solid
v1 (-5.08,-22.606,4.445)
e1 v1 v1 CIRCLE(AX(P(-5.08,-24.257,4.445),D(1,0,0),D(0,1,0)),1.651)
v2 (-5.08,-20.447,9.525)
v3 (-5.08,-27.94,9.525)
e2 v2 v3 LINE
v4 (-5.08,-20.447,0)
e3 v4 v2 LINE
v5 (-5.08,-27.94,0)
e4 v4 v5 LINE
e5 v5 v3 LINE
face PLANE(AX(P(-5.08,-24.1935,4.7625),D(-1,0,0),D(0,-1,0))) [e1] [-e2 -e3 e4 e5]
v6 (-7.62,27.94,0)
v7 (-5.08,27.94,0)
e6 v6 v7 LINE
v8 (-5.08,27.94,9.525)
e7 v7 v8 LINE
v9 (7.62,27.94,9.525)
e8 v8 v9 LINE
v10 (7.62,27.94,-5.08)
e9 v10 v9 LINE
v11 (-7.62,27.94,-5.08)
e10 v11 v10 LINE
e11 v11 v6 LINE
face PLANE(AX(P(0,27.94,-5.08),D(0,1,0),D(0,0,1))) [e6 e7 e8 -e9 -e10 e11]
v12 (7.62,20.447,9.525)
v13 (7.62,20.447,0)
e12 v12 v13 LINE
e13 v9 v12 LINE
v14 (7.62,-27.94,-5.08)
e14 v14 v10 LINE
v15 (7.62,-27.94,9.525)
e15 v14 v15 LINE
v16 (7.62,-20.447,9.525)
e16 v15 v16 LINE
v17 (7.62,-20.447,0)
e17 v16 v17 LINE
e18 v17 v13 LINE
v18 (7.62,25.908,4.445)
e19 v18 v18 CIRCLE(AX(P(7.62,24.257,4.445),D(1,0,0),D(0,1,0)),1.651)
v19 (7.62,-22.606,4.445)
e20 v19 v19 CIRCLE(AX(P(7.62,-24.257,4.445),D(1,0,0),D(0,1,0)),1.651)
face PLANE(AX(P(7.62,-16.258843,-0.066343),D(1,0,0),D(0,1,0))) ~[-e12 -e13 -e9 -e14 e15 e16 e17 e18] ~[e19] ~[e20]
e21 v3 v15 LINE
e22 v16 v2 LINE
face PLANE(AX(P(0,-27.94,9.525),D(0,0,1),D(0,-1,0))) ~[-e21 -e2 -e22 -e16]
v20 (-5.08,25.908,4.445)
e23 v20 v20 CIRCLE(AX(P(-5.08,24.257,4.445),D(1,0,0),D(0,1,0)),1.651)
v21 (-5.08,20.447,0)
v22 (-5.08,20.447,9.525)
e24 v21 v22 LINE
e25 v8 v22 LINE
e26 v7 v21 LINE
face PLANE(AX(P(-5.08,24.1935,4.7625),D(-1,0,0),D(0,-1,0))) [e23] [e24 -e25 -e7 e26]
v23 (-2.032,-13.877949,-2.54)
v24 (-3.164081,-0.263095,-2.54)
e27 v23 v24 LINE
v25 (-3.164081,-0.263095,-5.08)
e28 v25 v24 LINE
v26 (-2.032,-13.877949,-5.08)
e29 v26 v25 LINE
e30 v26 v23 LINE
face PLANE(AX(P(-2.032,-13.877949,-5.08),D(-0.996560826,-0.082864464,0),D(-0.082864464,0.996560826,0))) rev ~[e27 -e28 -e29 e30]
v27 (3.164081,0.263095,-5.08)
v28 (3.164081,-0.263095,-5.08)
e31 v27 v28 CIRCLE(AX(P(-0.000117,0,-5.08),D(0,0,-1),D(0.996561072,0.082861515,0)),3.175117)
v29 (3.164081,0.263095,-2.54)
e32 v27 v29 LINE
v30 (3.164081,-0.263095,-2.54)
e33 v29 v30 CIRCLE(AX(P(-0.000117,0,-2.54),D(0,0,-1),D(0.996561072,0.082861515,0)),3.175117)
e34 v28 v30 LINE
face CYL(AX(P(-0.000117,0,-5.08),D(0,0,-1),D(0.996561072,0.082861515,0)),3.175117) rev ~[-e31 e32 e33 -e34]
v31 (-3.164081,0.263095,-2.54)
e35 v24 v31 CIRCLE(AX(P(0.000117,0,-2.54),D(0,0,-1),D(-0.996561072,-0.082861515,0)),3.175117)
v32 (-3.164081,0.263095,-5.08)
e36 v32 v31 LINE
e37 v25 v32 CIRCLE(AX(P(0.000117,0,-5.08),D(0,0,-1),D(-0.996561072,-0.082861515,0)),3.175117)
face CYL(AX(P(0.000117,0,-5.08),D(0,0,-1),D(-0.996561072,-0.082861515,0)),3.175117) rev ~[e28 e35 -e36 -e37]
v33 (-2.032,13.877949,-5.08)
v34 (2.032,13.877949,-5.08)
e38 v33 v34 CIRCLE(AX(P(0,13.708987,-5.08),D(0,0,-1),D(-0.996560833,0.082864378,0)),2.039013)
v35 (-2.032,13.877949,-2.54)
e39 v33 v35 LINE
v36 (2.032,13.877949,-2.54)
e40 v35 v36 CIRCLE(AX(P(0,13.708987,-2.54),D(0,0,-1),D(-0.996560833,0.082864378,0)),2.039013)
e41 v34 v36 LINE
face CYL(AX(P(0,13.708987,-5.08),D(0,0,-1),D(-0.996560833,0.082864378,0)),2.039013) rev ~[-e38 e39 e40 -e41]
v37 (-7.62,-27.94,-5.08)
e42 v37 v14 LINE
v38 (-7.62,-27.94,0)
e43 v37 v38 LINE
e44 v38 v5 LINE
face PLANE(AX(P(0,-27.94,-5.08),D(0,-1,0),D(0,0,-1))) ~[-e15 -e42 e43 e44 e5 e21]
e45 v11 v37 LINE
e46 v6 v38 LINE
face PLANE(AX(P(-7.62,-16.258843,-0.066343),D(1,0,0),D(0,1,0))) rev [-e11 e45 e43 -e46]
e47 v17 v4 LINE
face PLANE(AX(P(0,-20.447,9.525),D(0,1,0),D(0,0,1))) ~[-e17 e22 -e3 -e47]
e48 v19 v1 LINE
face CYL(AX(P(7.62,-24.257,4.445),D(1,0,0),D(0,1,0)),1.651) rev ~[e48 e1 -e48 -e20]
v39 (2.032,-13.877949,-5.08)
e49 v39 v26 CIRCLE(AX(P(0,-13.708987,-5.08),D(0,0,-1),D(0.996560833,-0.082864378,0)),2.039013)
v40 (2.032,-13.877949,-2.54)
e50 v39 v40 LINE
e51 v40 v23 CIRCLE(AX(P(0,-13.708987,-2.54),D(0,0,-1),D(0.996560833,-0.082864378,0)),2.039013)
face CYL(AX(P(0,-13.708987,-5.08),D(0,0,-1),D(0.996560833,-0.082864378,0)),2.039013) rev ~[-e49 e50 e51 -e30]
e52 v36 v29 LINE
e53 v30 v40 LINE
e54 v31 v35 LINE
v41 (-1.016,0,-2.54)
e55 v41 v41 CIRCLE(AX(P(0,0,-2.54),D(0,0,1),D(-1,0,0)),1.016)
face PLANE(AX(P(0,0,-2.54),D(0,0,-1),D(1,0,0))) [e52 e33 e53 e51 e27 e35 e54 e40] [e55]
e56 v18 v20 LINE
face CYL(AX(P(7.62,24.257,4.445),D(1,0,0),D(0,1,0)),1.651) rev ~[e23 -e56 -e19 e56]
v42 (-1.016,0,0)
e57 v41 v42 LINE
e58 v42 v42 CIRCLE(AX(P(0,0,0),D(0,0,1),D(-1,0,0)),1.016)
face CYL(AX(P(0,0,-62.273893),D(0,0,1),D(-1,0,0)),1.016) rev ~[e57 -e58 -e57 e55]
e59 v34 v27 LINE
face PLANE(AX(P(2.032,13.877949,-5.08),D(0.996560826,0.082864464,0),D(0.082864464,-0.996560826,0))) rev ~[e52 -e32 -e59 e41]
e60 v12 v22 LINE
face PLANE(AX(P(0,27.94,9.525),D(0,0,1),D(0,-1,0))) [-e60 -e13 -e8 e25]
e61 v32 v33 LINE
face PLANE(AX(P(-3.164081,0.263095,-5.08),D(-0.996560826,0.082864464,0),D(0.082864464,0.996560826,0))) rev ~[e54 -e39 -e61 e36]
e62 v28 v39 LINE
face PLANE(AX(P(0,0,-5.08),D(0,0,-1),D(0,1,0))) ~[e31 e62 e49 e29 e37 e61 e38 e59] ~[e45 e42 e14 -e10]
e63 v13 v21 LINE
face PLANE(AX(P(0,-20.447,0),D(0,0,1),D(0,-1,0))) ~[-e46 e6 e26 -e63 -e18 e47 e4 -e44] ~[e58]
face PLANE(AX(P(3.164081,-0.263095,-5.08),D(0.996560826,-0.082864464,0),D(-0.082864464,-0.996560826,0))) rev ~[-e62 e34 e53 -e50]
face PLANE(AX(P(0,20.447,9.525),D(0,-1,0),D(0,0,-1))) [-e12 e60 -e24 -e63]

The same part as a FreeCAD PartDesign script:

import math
import FreeCAD as App
import Part
import Sketcher
from FreeCAD import Vector
Q = App.Units.Quantity

doc = App.newDocument("Part")
body = doc.addObject("PartDesign::Body", "Body")

# Sketch on YZ plane
sketch1 = doc.addObject("Sketcher::SketchObject", "Sketch")
body.addObject(sketch1)
sketch1.AttachmentSupport = (doc.YZ_Plane, [""])
sketch1.MapMode = "FlatFace"
sketch1.addGeometry(Part.LineSegment(Vector(0, 0, 0), Vector(0, -5, 0)), False)
sketch1.addGeometry(Part.LineSegment(Vector(0, -5, 0), Vector(28, -5, 0)), False)
sketch1.addGeometry(Part.LineSegment(Vector(28, -5, 0), Vector(28, 10, 0)), False)
sketch1.addGeometry(Part.LineSegment(Vector(28, 10, 0), Vector(20, 10, 0)), False)
sketch1.addGeometry(Part.LineSegment(Vector(20, 10, 0), Vector(20, 0, 0)), False)
sketch1.addGeometry(Part.LineSegment(Vector(20, 0, 0), Vector(0, 0, 0)), False)
sketch1.addConstraint(Sketcher.Constraint("Coincident", 0, 2, 1, 1))
sketch1.addConstraint(Sketcher.Constraint("Coincident", 1, 2, 2, 1))
sketch1.addConstraint(Sketcher.Constraint("Coincident", 2, 2, 3, 1))
sketch1.addConstraint(Sketcher.Constraint("Coincident", 3, 2, 4, 1))
sketch1.addConstraint(Sketcher.Constraint("Coincident", 4, 2, 5, 1))
sketch1.addConstraint(Sketcher.Constraint("Coincident", 5, 2, 0, 1))
sketch1.addConstraint(Sketcher.Constraint("Vertical", 0))
sketch1.addConstraint(Sketcher.Constraint("Horizontal", 1))
sketch1.addConstraint(Sketcher.Constraint("Vertical", 2))
sketch1.addConstraint(Sketcher.Constraint("Horizontal", 3))
sketch1.addConstraint(Sketcher.Constraint("Vertical", 4))
sketch1.addConstraint(Sketcher.Constraint("Horizontal", 5))
sketch1.addConstraint(Sketcher.Constraint("Coincident", 5, 2, -1, 1))
sketch1.addConstraint(Sketcher.Constraint("DistanceX", 1, 1, 1, 2, Q("1.1 in")))
sketch1.addConstraint(Sketcher.Constraint("DistanceY", 0, 2, 0, 1, Q("0.2 in")))
sketch1.addConstraint(Sketcher.Constraint("DistanceX", 3, 2, 3, 1, Q("0.295 in")))
sketch1.addConstraint(Sketcher.Constraint("DistanceY", 2, 1, 2, 2, Q("0.575 in")))
pad1 = doc.addObject("PartDesign::Pad", "Pad")
body.addObject(pad1)
pad1.Profile = sketch1
pad1.Length = Q("0.6 in")
pad1.Midplane = True
body2 = doc.addObject("PartDesign::Body", "Body001")
doc.recompute()

body2.BaseFeature = body
doc.recompute()

mirroring = doc.addObject("Part::Mirroring", "Mirroring")
mirroring.Source = body
mirroring.Base = Vector(0, 0, 0)
mirroring.Normal = Vector(0, -1, 0)
body3 = doc.addObject("PartDesign::Body", "Body002")
body3.BaseFeature = mirroring
boolean = doc.addObject("PartDesign::Boolean", "Boolean")
body2.addObject(boolean)
boolean.Type = "Fuse"
boolean.addObjects([body3])
doc.recompute()

# Sketch on YZ plane
sketch2 = doc.addObject("Sketcher::SketchObject", "Sketch001")
body2.addObject(sketch2)
sketch2.AttachmentSupport = (doc.getObject("YZ_Plane001"), [""])
sketch2.MapMode = "FlatFace"
sketch2.AttachmentOffset = App.Placement(Vector(0, 0, 0.3 * 25.4), App.Rotation())
sketch2.addGeometry(Part.Circle(Vector(-24.3, 4.4, 0), Vector(0, 0, 1), 1.7), False)
sketch2.addGeometry(Part.Circle(Vector(24.3, 4.4, 0), Vector(0, 0, 1), 1.7), False)
sketch2.addConstraint(Sketcher.Constraint("Equal", 0, 1))
sketch2.addConstraint(Sketcher.Constraint("Symmetric", 0, 3, 1, 3, -2))
sketch2.addConstraint(Sketcher.Constraint("Diameter", 0, Q("0.13 in")))
sketch2.addConstraint(Sketcher.Constraint("DistanceX", 0, 3, 1, 3, Q("1.91 in")))
sketch2.addConstraint(Sketcher.Constraint("DistanceY", -1, 1, 0, 3, Q("0.175 in")))
pocket1 = doc.addObject("PartDesign::Pocket", "Pocket")
body2.addObject(pocket1)
pocket1.Profile = sketch2
pocket1.Length = Q("1 in")

# Sketch on XY plane
sketch3 = doc.addObject("Sketcher::SketchObject", "Sketch002")
body2.addObject(sketch3)
sketch3.AttachmentSupport = (doc.getObject("XY_Plane001"), [""])
sketch3.MapMode = "FlatFace"
sketch3.AttachmentOffset = App.Placement(Vector(0, 0, -0.2 * 25.4), App.Rotation())
sketch3.addGeometry(Part.LineSegment(Vector(-3.164081, 0.263095, 0), Vector(-2.032, 13.877949, 0)), False)
sketch3.addGeometry(Part.ArcOfCircle(Part.Circle(Vector(0, 13.708987, 0), Vector(0, 0, 1), 2.039013), math.radians(4.753229), math.radians(175.246771)), False)
sketch3.addGeometry(Part.LineSegment(Vector(2.032, 13.877949, 0), Vector(3.164081, 0.263095, 0)), False)
sketch3.addGeometry(Part.ArcOfCircle(Part.Circle(Vector(-0.000117, 0, 0), Vector(0, 0, 1), 3.175117), math.radians(-4.753065), math.radians(4.753065)), False)
sketch3.addGeometry(Part.LineSegment(Vector(3.164081, -0.263095, 0), Vector(2.032, -13.877949, 0)), False)
sketch3.addGeometry(Part.ArcOfCircle(Part.Circle(Vector(0, -13.708987, 0), Vector(0, 0, 1), 2.039013), math.radians(-175.246771), math.radians(-4.753229)), False)
sketch3.addGeometry(Part.LineSegment(Vector(-2.032, -13.877949, 0), Vector(-3.164081, -0.263095, 0)), False)
sketch3.addGeometry(Part.ArcOfCircle(Part.Circle(Vector(0.000117, 0, 0), Vector(0, 0, 1), 3.175117), math.radians(175.246935), math.radians(184.753065)), False)
sketch3.addConstraint(Sketcher.Constraint("Coincident", 0, 2, 1, 2))
sketch3.addConstraint(Sketcher.Constraint("Coincident", 1, 1, 2, 1))
sketch3.addConstraint(Sketcher.Constraint("Coincident", 2, 2, 3, 2))
sketch3.addConstraint(Sketcher.Constraint("Coincident", 3, 1, 4, 1))
sketch3.addConstraint(Sketcher.Constraint("Coincident", 4, 2, 5, 2))
sketch3.addConstraint(Sketcher.Constraint("Coincident", 5, 1, 6, 1))
sketch3.addConstraint(Sketcher.Constraint("Coincident", 6, 2, 7, 2))
sketch3.addConstraint(Sketcher.Constraint("Coincident", 7, 1, 0, 1))
sketch3.addConstraint(Sketcher.Constraint("PointOnObject", 1, 3, -2))
sketch3.addConstraint(Sketcher.Constraint("PointOnObject", 3, 3, -1))
sketch3.addConstraint(Sketcher.Constraint("PointOnObject", 5, 3, -2))
sketch3.addConstraint(Sketcher.Constraint("PointOnObject", 7, 3, -1))
sketch3.addConstraint(Sketcher.Constraint("DistanceX", 0, 2, -1, 1, Q("0.08 in")))
sketch3.addConstraint(Sketcher.Constraint("DistanceX", -1, 1, 1, 1, Q("0.08 in")))
sketch3.addConstraint(Sketcher.Constraint("DistanceX", -1, 1, 4, 2, Q("0.08 in")))
sketch3.addConstraint(Sketcher.Constraint("DistanceX", 5, 1, -1, 1, Q("0.08 in")))
sketch3.addConstraint(Sketcher.Constraint("Radius", 1, Q("2.039013 mm")))
sketch3.addConstraint(Sketcher.Constraint("Radius", 3, Q("3.175117 mm")))
sketch3.addConstraint(Sketcher.Constraint("Radius", 5, Q("2.039013 mm")))
sketch3.addConstraint(Sketcher.Constraint("Radius", 7, Q("3.175117 mm")))
sketch3.addConstraint(Sketcher.Constraint("DistanceY", 5, 3, 0, 2, Q("1.0860999 in")))
sketch3.addConstraint(Sketcher.Constraint("Distance", 0, Q("13.661839 mm")))
sketch3.addConstraint(Sketcher.Constraint("Distance", 2, Q("13.661839 mm")))
sketch3.addConstraint(Sketcher.Constraint("Distance", 4, Q("13.661839 mm")))
sketch3.addConstraint(Sketcher.Constraint("Distance", 6, Q("13.661839 mm")))
sketch3.addConstraint(Sketcher.Constraint("DistanceY", -1, 1, 0, 2, Q("13.877949 mm")))
sketch3.addConstraint(Sketcher.Constraint("DistanceX", -1, 1, 2, 2, Q("3.164081 mm")))
sketch3.addConstraint(Sketcher.Constraint("DistanceX", 6, 2, -1, 1, Q("3.164081 mm")))
pocket2 = doc.addObject("PartDesign::Pocket", "Pocket001")
body2.addObject(pocket2)
pocket2.Profile = sketch3
pocket2.Length = Q("0.1 in")
pocket2.Reversed = True

# Sketch on XY plane
sketch4 = doc.addObject("Sketcher::SketchObject", "Sketch003")
body2.addObject(sketch4)
sketch4.AttachmentSupport = (doc.getObject("XY_Plane001"), [""])
sketch4.MapMode = "FlatFace"
sketch4.AttachmentOffset = App.Placement(Vector(0, 0, -0.1 * 25.4), App.Rotation())
sketch4.addGeometry(Part.Circle(Vector(0, 0, 0), Vector(0, 0, 1), 1), False)
sketch4.addConstraint(Sketcher.Constraint("Coincident", 0, 3, -1, 1))
sketch4.addConstraint(Sketcher.Constraint("Diameter", 0, Q("0.08 in")))
doc.recompute()
hole = doc.addObject("PartDesign::Hole", "Hole")
body2.addObject(hole)
hole.Profile = sketch4
hole.ThreadType = "None"
hole.Diameter = Q("0.08 in")
hole.DepthType = "ThroughAll"
hole.Reversed = True

# Sketch on YZ plane
sketch5 = doc.addObject("Sketcher::SketchObject", "Sketch004")
body2.addObject(sketch5)
sketch5.AttachmentSupport = (doc.getObject("YZ_Plane001"), [""])
sketch5.MapMode = "FlatFace"
sketch5.AttachmentOffset = App.Placement(Vector(0, 0, -0.3 * 25.4), App.Rotation())
sketch5.addGeometry(Part.LineSegment(Vector(27.9, 9.5, 0), Vector(27.9, 0, 0)), False)
sketch5.addGeometry(Part.LineSegment(Vector(27.9, 0, 0), Vector(20.4, 0, 0)), False)
sketch5.addGeometry(Part.LineSegment(Vector(20.4, 0, 0), Vector(20.4, 9.5, 0)), False)
sketch5.addGeometry(Part.LineSegment(Vector(20.4, 9.5, 0), Vector(27.9, 9.5, 0)), False)
sketch5.addGeometry(Part.Circle(Vector(24.3, 4.4, 0), Vector(0, 0, 1), 1.7), False)
sketch5.addGeometry(Part.LineSegment(Vector(-20.4, 9.5, 0), Vector(-20.4, 0, 0)), False)
sketch5.addGeometry(Part.LineSegment(Vector(-20.4, 0, 0), Vector(-27.9, 0, 0)), False)
sketch5.addGeometry(Part.LineSegment(Vector(-27.9, 0, 0), Vector(-27.9, 9.5, 0)), False)
sketch5.addGeometry(Part.LineSegment(Vector(-27.9, 9.5, 0), Vector(-20.4, 9.5, 0)), False)
sketch5.addGeometry(Part.Circle(Vector(-24.3, 4.4, 0), Vector(0, 0, 1), 1.7), False)
sketch5.addConstraint(Sketcher.Constraint("Coincident", 0, 2, 1, 1))
sketch5.addConstraint(Sketcher.Constraint("Coincident", 1, 2, 2, 1))
sketch5.addConstraint(Sketcher.Constraint("Coincident", 2, 2, 3, 1))
sketch5.addConstraint(Sketcher.Constraint("Coincident", 3, 2, 0, 1))
sketch5.addConstraint(Sketcher.Constraint("Coincident", 5, 2, 6, 1))
sketch5.addConstraint(Sketcher.Constraint("Coincident", 6, 2, 7, 1))
sketch5.addConstraint(Sketcher.Constraint("Coincident", 7, 2, 8, 1))
sketch5.addConstraint(Sketcher.Constraint("Coincident", 8, 2, 5, 1))
sketch5.addConstraint(Sketcher.Constraint("Vertical", 0))
sketch5.addConstraint(Sketcher.Constraint("Horizontal", 1))
sketch5.addConstraint(Sketcher.Constraint("Vertical", 2))
sketch5.addConstraint(Sketcher.Constraint("Horizontal", 3))
sketch5.addConstraint(Sketcher.Constraint("Vertical", 5))
sketch5.addConstraint(Sketcher.Constraint("Horizontal", 6))
sketch5.addConstraint(Sketcher.Constraint("Vertical", 7))
sketch5.addConstraint(Sketcher.Constraint("Horizontal", 8))
sketch5.addConstraint(Sketcher.Constraint("Equal", 4, 9))
sketch5.addConstraint(Sketcher.Constraint("Symmetric", 1, 2, 5, 2, -1, 1))
sketch5.addConstraint(Sketcher.Constraint("Symmetric", 4, 3, 9, 3, -2))
sketch5.addConstraint(Sketcher.Constraint("Symmetric", 0, 2, 6, 2, -2))
sketch5.addConstraint(Sketcher.Constraint("Horizontal", 3, 2, 7, 2))
sketch5.addConstraint(Sketcher.Constraint("Diameter", 4, Q("0.13 in")))
sketch5.addConstraint(Sketcher.Constraint("DistanceX", -1, 1, 0, 2, Q("1.1 in")))
sketch5.addConstraint(Sketcher.Constraint("DistanceY", 4, 3, 2, 2, Q("0.2 in")))
sketch5.addConstraint(Sketcher.Constraint("DistanceX", 1, 2, 1, 1, Q("0.295 in")))
sketch5.addConstraint(Sketcher.Constraint("DistanceY", 0, 2, 0, 1, Q("0.375 in")))
sketch5.addConstraint(Sketcher.Constraint("DistanceX", 9, 3, 4, 3, Q("1.91 in")))
pocket3 = doc.addObject("PartDesign::Pocket", "Pocket002")
body2.addObject(pocket3)
pocket3.Profile = sketch5
pocket3.Length = Q("0.1 in")
pocket3.Reversed = True
mirroring.Visibility = False

doc.recompute()
